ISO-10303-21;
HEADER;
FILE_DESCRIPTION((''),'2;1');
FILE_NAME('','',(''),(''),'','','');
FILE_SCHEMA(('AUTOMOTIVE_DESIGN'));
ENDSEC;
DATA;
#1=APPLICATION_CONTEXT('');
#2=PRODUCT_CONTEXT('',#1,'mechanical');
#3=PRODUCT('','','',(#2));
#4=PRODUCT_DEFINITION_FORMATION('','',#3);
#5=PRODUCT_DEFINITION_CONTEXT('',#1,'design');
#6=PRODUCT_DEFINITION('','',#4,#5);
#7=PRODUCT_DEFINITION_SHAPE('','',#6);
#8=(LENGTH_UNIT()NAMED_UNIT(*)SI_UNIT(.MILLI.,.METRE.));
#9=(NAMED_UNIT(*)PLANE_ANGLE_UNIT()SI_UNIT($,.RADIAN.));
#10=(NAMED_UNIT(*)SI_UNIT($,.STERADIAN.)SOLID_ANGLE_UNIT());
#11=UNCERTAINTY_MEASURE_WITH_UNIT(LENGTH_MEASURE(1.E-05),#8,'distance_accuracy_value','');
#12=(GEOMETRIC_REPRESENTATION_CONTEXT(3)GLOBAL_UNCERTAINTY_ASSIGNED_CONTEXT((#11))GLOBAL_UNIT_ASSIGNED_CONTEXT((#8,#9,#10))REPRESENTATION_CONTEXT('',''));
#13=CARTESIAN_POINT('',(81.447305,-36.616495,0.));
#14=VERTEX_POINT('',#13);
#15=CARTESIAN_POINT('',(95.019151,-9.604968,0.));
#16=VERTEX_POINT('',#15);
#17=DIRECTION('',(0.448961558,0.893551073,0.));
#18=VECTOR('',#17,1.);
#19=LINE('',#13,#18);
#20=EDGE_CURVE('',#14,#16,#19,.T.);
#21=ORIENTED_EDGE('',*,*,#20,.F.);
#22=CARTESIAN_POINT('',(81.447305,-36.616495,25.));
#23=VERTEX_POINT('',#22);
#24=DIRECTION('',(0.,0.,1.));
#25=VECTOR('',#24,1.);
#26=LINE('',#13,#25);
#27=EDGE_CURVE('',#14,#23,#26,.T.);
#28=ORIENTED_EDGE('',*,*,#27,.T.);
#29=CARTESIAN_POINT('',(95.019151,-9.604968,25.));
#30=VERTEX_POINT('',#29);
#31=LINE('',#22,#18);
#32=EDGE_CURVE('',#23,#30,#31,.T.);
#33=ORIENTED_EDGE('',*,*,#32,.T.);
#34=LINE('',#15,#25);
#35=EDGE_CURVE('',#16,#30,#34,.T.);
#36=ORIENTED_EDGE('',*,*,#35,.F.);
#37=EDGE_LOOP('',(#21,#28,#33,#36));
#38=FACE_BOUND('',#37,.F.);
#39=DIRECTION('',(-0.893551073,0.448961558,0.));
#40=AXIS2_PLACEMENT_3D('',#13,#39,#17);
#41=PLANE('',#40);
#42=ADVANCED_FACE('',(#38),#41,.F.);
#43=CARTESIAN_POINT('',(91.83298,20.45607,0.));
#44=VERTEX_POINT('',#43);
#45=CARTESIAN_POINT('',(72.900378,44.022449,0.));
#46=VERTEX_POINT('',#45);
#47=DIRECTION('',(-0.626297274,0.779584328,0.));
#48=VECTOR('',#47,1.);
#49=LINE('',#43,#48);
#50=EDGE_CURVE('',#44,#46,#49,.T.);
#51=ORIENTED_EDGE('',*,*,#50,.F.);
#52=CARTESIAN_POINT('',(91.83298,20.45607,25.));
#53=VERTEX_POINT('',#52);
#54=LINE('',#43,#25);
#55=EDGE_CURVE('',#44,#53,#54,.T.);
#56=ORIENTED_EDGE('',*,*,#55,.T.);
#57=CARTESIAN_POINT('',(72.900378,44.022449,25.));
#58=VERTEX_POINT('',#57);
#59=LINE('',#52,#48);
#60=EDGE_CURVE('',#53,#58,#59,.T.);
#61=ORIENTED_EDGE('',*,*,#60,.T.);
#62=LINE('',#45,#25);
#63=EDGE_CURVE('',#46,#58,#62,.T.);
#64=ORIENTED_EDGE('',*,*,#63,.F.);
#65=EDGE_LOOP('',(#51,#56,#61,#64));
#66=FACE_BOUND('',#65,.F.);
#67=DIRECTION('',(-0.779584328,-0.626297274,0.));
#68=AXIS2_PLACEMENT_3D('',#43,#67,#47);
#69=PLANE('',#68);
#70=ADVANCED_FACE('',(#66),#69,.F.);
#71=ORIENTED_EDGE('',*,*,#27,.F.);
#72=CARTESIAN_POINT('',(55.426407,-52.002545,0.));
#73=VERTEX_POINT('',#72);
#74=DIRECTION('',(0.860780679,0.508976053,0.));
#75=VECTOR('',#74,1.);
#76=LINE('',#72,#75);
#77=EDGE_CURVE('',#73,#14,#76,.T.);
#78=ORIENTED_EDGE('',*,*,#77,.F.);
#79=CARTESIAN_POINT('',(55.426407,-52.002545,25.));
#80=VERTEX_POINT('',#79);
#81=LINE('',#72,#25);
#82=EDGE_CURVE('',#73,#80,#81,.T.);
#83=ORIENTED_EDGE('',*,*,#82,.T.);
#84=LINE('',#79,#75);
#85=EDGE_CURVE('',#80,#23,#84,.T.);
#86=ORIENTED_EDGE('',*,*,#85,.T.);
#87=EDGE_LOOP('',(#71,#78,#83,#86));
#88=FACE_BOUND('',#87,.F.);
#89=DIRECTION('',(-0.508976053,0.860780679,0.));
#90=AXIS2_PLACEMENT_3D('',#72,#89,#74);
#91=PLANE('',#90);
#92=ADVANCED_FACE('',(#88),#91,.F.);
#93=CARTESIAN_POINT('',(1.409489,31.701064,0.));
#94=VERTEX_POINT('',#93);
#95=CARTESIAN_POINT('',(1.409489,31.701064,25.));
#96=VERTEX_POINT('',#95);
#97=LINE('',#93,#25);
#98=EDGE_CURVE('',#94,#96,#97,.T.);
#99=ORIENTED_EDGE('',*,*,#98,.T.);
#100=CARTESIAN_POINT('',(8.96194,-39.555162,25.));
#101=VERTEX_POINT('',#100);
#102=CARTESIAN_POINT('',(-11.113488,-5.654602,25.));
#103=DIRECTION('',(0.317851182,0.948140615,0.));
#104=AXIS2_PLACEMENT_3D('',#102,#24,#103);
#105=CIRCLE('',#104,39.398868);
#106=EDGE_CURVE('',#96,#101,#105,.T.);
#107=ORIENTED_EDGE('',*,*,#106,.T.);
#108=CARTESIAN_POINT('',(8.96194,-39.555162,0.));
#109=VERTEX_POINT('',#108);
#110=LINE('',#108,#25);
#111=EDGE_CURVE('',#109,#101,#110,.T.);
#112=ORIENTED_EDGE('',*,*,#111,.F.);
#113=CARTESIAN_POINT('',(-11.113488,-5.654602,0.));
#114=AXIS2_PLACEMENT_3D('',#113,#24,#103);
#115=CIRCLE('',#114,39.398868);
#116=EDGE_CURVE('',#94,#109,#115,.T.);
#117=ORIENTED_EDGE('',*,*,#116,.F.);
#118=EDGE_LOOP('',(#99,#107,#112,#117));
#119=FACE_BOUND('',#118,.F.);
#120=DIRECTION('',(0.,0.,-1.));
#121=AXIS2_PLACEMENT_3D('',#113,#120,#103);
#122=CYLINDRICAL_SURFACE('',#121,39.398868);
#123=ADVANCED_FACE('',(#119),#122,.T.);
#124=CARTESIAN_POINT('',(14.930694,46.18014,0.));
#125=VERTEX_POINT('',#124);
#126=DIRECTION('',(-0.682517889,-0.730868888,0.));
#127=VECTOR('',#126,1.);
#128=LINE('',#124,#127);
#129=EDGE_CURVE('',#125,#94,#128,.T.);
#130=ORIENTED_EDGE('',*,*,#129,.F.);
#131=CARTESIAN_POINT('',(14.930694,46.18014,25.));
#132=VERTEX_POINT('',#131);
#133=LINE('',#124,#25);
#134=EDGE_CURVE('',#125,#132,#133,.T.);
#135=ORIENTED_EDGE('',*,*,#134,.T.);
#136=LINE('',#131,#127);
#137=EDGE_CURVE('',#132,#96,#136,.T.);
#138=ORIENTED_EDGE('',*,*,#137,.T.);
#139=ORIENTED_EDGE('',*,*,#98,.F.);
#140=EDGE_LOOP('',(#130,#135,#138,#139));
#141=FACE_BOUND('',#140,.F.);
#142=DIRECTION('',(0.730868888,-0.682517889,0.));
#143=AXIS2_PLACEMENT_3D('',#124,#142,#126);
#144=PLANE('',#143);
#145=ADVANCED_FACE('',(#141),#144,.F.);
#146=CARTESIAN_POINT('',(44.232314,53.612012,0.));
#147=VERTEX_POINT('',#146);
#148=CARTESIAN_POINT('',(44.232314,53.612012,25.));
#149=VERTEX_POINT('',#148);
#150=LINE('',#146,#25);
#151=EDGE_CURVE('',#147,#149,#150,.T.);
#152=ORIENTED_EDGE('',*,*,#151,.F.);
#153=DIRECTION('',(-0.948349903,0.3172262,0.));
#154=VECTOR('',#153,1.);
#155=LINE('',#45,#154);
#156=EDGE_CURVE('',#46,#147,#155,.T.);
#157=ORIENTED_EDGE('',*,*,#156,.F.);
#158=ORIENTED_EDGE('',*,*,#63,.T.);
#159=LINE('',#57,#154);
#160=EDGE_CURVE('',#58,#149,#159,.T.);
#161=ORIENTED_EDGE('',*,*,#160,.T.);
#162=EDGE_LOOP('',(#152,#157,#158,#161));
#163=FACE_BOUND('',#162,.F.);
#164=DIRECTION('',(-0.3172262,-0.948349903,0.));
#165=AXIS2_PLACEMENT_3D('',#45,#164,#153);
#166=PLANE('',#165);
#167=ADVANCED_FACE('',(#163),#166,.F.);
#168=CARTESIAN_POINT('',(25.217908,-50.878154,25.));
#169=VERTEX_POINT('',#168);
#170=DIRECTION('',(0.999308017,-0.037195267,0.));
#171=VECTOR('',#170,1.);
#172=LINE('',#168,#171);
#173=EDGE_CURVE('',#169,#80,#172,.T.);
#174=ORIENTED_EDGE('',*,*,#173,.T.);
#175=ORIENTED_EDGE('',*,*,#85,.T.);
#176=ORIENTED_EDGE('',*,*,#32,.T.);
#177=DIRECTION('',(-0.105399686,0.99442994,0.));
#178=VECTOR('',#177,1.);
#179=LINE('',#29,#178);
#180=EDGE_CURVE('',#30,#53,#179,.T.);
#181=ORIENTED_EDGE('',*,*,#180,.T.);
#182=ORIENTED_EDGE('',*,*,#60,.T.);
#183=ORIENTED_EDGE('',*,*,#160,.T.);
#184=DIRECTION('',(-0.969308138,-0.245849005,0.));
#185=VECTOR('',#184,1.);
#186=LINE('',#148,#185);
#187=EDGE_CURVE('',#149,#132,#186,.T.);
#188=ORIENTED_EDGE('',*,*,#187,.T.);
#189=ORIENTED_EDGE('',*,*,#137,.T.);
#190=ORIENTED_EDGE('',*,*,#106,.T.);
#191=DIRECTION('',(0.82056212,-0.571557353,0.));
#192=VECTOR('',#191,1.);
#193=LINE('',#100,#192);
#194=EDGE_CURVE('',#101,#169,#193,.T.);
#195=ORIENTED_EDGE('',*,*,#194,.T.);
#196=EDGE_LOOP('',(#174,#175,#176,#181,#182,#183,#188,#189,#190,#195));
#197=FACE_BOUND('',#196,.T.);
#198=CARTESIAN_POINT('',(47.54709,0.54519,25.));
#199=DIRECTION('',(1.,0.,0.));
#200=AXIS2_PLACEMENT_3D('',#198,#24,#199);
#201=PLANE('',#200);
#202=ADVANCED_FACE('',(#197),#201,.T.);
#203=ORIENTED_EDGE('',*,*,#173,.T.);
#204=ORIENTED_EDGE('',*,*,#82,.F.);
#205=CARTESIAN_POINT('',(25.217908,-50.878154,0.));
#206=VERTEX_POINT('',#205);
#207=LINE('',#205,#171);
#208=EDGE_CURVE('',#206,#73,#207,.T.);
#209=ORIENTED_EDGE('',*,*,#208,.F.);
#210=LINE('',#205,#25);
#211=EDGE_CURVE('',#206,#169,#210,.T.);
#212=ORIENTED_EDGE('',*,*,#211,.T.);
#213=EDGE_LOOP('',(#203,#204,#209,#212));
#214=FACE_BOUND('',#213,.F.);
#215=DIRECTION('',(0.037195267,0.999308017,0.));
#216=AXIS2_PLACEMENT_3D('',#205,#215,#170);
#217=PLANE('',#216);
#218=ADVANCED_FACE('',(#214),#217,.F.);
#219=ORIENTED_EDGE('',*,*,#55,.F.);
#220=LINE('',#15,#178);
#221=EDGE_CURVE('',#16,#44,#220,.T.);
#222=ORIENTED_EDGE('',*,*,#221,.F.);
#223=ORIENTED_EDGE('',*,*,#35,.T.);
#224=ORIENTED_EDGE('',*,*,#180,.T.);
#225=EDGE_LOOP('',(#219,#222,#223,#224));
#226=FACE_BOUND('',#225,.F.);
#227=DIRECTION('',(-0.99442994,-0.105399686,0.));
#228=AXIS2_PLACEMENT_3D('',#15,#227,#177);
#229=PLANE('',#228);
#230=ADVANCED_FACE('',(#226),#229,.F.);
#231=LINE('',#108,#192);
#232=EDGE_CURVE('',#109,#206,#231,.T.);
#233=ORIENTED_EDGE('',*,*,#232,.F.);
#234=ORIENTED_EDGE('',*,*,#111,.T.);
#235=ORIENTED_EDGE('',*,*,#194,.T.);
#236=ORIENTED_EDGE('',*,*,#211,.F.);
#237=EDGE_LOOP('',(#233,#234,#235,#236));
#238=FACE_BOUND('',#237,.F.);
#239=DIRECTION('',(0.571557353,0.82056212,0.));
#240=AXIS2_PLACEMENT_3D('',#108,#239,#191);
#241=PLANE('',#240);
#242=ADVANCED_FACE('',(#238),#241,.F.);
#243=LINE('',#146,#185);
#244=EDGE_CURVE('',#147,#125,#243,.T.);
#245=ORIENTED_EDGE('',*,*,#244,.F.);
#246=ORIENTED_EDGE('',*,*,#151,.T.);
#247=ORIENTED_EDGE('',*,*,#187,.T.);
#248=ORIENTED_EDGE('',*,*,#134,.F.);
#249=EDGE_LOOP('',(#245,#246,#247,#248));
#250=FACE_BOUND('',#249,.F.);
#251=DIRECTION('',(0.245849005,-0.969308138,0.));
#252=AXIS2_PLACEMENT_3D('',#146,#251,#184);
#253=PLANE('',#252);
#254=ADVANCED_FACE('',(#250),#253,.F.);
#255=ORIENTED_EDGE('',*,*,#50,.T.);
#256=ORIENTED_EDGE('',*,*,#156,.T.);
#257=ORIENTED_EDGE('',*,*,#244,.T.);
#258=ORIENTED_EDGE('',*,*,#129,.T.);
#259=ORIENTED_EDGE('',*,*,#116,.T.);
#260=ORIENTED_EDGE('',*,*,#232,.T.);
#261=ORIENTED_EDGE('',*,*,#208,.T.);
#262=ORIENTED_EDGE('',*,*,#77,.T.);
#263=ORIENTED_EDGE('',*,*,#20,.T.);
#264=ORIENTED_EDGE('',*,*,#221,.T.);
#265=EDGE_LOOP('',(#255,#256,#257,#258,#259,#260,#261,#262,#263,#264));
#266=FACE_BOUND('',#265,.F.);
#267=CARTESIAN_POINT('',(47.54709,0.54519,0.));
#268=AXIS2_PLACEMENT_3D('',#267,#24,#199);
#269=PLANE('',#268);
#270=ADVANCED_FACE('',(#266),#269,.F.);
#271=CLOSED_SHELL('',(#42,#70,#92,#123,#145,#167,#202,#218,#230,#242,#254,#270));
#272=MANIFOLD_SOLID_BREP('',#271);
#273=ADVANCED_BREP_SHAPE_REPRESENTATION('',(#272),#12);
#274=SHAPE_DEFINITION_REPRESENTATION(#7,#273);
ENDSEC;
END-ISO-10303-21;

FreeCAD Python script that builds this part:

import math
import FreeCAD as App
import Part
import Sketcher
from FreeCAD import Vector

doc = App.newDocument("Part")
body = doc.addObject("PartDesign::Body", "Body")

sketch1 = body.newObject("Sketcher::SketchObject", "Sketch")
sketch1.AttachmentSupport = (doc.getObject("XY_Plane"), [""])
sketch1.MapMode = "FlatFace"
sketch1.addGeometry(Part.LineSegment(Vector(44.232314, 53.612012, 0), Vector(14.930694, 46.18014, 0)), False)
sketch1.addGeometry(Part.LineSegment(Vector(14.930694, 46.18014, 0), Vector(1.409489, 31.701064, 0)), False)
sketch1.addGeometry(Part.ArcOfCircle(Part.Circle(Vector(-11.113488, -5.654602, 0), Vector(0, 0, 1), 39.398868), math.radians(71.466977), math.radians(300.633412)), False)
sketch1.addGeometry(Part.LineSegment(Vector(8.96194, -39.555162, 0), Vector(25.217908, -50.878154, 0)), False)
sketch1.addGeometry(Part.LineSegment(Vector(25.217908, -50.878154, 0), Vector(55.426407, -52.002545, 0)), False)
sketch1.addGeometry(Part.LineSegment(Vector(55.426407, -52.002545, 0), Vector(81.447305, -36.616495, 0)), False)
sketch1.addGeometry(Part.LineSegment(Vector(81.447305, -36.616495, 0), Vector(95.019151, -9.604968, 0)), False)
sketch1.addGeometry(Part.LineSegment(Vector(95.019151, -9.604968, 0), Vector(91.83298, 20.45607, 0)), False)
sketch1.addGeometry(Part.LineSegment(Vector(91.83298, 20.45607, 0), Vector(72.900378, 44.022449, 0)), False)
sketch1.addGeometry(Part.LineSegment(Vector(72.900378, 44.022449, 0), Vector(44.232314, 53.612012, 0)), False)
sketch1.addConstraint(Sketcher.Constraint("Coincident", 0, 2, 1, 1))
sketch1.addConstraint(Sketcher.Constraint("Coincident", 1, 2, 2, 1))
sketch1.addConstraint(Sketcher.Constraint("Coincident", 2, 2, 3, 1))
sketch1.addConstraint(Sketcher.Constraint("Coincident", 3, 2, 4, 1))
sketch1.addConstraint(Sketcher.Constraint("Coincident", 4, 2, 5, 1))
sketch1.addConstraint(Sketcher.Constraint("Coincident", 5, 2, 6, 1))
sketch1.addConstraint(Sketcher.Constraint("Coincident", 6, 2, 7, 1))
sketch1.addConstraint(Sketcher.Constraint("Coincident", 7, 2, 8, 1))
sketch1.addConstraint(Sketcher.Constraint("Coincident", 8, 2, 9, 1))
sketch1.addConstraint(Sketcher.Constraint("Coincident", 9, 2, 0, 1))
sketch1.addConstraint(Sketcher.Constraint("Radius", 2, 39.398868))
sketch1.addConstraint(Sketcher.Constraint("DistanceX", 3, 2, 4, 2, 30.208499))
sketch1.addConstraint(Sketcher.Constraint("DistanceX", 8, 2, 7, 2, 18.932601))
sketch1.addConstraint(Sketcher.Constraint("DistanceX", 2, 3, 9, 2, 55.345802))
sketch1.addConstraint(Sketcher.Constraint("Distance", 1, 19.810771))
sketch1.addConstraint(Sketcher.Constraint("Distance", 3, 19.810771))
sketch1.addConstraint(Sketcher.Constraint("DistanceY", -1, 1, 0, 2, 46.18014))
sketch1.addConstraint(Sketcher.Constraint("DistanceX", -1, 1, 1, 2, 1.409489))
sketch1.addConstraint(Sketcher.Constraint("DistanceX", -1, 1, 2, 2, 8.96194))
sketch1.addConstraint(Sketcher.Constraint("DistanceY", 2, 2, -1, 1, 39.555162))
sketch1.addConstraint(Sketcher.Constraint("DistanceX", -1, 1, 3, 2, 25.217908))
sketch1.addConstraint(Sketcher.Constraint("DistanceX", -1, 1, 6, 2, 95.019151))
sketch1.addConstraint(Sketcher.Constraint("DistanceX", -1, 1, 7, 2, 91.83298))
sketch1.addConstraint(Sketcher.Constraint("DistanceY", -1, 1, 7, 2, 20.45607))
sketch1.addConstraint(Sketcher.Constraint("DistanceY", -1, 1, 8, 2, 44.022449))
sketch1.addConstraint(Sketcher.Constraint("DistanceX", 2, 3, 2, 2, 20.075428))
sketch1.addConstraint(Sketcher.Constraint("DistanceY", 4, 2, 3, 2, 1.124391))
sketch1.addConstraint(Sketcher.Constraint("DistanceY", 4, 2, 5, 2, 15.386049))
sketch1.addConstraint(Sketcher.Constraint("Distance", 0, 30.229417))
sketch1.addConstraint(Sketcher.Constraint("Distance", 5, 30.229417))
sketch1.addConstraint(Sketcher.Constraint("Distance", 6, 30.229417))
pad1 = body.newObject("PartDesign::Pad", "Pad")
pad1.Profile = sketch1
pad1.Length = 25

doc.recompute()
